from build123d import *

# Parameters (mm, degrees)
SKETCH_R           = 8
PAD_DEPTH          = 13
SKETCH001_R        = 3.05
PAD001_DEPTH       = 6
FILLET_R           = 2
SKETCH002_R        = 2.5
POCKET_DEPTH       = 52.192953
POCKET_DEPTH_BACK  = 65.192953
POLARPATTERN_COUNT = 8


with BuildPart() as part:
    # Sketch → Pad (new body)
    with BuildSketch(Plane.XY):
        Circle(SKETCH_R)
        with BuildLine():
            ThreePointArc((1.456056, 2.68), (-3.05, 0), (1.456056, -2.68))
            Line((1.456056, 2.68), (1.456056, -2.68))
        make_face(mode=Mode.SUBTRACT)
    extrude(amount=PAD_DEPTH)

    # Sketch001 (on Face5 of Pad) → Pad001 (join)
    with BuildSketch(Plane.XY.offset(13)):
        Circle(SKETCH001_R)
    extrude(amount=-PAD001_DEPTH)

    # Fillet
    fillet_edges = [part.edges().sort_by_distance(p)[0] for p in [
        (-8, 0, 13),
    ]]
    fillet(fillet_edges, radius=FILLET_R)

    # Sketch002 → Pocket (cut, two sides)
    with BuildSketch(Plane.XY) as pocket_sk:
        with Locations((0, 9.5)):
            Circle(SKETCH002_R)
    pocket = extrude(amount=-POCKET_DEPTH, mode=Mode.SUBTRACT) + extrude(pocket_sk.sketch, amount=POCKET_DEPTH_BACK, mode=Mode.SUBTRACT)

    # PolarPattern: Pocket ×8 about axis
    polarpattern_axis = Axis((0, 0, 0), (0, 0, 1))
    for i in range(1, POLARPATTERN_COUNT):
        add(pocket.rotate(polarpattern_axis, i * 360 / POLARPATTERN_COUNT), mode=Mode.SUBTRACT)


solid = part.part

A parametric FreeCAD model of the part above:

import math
import FreeCAD as App
import Part
import Sketcher
Q = App.Units.Quantity


def edges_at(feature, points):
    """Names of the edges that pass closest to the given points."""
    edges = feature.Shape.Edges
    near = lambda p: min(range(len(edges)), key=lambda i: edges[i].distToShape(Part.Vertex(*p))[0])
    return sorted({f"Edge{near(p) + 1}" for p in points})

doc = App.newDocument("Part")
params = doc.addObject("Spreadsheet::Sheet", "Params")
for row, (alias, value) in enumerate([
    ("sketch1_diameter", "16 mm"),
    ("sketch1_radius", "3.05 mm"),
    ("sketch1_height", "5.36 mm"),
    ("pad1_length", "13 mm"),
    ("sketch2_diameter", "6.1 mm"),
    ("pad2_length", "6 mm"),
    ("fillet_radius", "2 mm"),
    ("sketch3_diameter", "5 mm"),
], start=1):
    params.set(f"A{row}", alias)
    params.set(f"B{row}", "=" + value)
    params.setAlias(f"B{row}", alias)

body = doc.addObject("PartDesign::Body", "Body")

sketch1 = body.newObject("Sketcher::SketchObject", "Sketch")
sketch1.AttachmentSupport = (doc.getObject("XY_Plane"), [""])
sketch1.MapMode = "FlatFace"
sketch1.addGeometry([
    Part.Circle(App.Vector(0, 0, 0), App.Vector(0, 0, 1), 8),
    Part.ArcOfCircle(Part.Circle(App.Vector(0, 0, 0), App.Vector(0, 0, 1), 3), math.radians(61), math.radians(299)),
    Part.LineSegment(App.Vector(1.5, 2.7, 0), App.Vector(1.5, -2.7, 0)),
], False)
sketch1.addConstraint([
    Sketcher.Constraint("Coincident", 1, 1, 2, 1),
    Sketcher.Constraint("Coincident", 2, 2, 1, 2),
    Sketcher.Constraint("Vertical", 2),
    Sketcher.Constraint("Coincident", 0, 3, -1, 1),
    Sketcher.Constraint("Coincident", 1, 3, -1, 1),
    Sketcher.Constraint("Diameter", 0, Q("16 mm")),
    Sketcher.Constraint("Radius", 1, Q("3.05 mm")),
    Sketcher.Constraint("DistanceY", 2, 2, 2, 1, Q("5.36 mm")),
])
sketch1.setExpression("Constraints[5]", "Params.sketch1_diameter")
sketch1.setExpression("Constraints[6]", "Params.sketch1_radius")
sketch1.setExpression("Constraints[7]", "Params.sketch1_height")
pad1 = body.newObject("PartDesign::Pad", "Pad")
pad1.Profile = sketch1
pad1.setExpression("Length", "Params.pad1_length")

sketch2 = body.newObject("Sketcher::SketchObject", "Sketch001")
sketch2.AttachmentSupport = (doc.getObject("XY_Plane"), [""])
sketch2.MapMode = "FlatFace"
sketch2.AttachmentOffset = App.Placement(App.Vector(0, 0, 13), App.Rotation())
sketch2.addGeometry(Part.Circle(App.Vector(0, 0, 0), App.Vector(0, 0, 1), 3), False)
sketch2.addConstraint([
    Sketcher.Constraint("Coincident", 0, 3, -1, 1),
    Sketcher.Constraint("Diameter", 0, Q("6.1 mm")),
])
sketch2.setExpression("Constraints[1]", "Params.sketch2_diameter")
pad2 = body.newObject("PartDesign::Pad", "Pad001")
pad2.Profile = sketch2
pad2.setExpression("Length", "Params.pad2_length")
pad2.Reversed = True
doc.recompute()

fillet = body.newObject("PartDesign::Fillet", "Fillet")
fillet.Base = (pad2, edges_at(pad2, [(-8, 0, 13)]))
fillet.setExpression("Radius", "Params.fillet_radius")

sketch3 = body.newObject("Sketcher::SketchObject", "Sketch002")
sketch3.AttachmentSupport = (doc.getObject("XY_Plane"), [""])
sketch3.MapMode = "FlatFace"
sketch3.addGeometry(Part.Circle(App.Vector(0, 9.5, 0), App.Vector(0, 0, 1), 2.5), False)
sketch3.addConstraint([
    Sketcher.Constraint("PointOnObject", 0, 3, -2),
    Sketcher.Constraint("Diameter", 0, Q("5 mm")),
    Sketcher.Constraint("DistanceY", -1, 1, 0, 3, Q("9.5 mm")),
])
sketch3.setExpression("Constraints[1]", "Params.sketch3_diameter")
pocket1 = body.newObject("PartDesign::Pocket", "Pocket")
pocket1.Profile = sketch3
pocket1.Type = "ThroughAll"
pocket1.Midplane = True
doc.recompute()

polarpattern = body.newObject("PartDesign::PolarPattern", "PolarPattern")
polarpattern.Originals = [pocket1]
polarpattern.Axis = (doc.getObject("Z_Axis"), [""])
polarpattern.Angle = 360
polarpattern.Occurrences = 8
body.Tip = polarpattern

doc.recompute()
